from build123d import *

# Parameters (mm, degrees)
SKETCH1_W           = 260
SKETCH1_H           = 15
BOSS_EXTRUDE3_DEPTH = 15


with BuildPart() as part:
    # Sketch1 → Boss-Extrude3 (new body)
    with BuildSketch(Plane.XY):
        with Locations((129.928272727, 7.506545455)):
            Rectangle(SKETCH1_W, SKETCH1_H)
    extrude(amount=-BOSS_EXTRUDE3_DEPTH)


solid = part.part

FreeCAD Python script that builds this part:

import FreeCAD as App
import Part
import Sketcher
from FreeCAD import Vector
Q = App.Units.Quantity


def add_polygon(sketch, points):
    """Adds a closed chain of lines whose ends are joined by coincident constraints."""
    first, n = sketch.GeometryCount, len(points)
    for a, b in zip(points, points[1:] + points[:1]):
        sketch.addGeometry(Part.LineSegment(App.Vector(*a, 0), App.Vector(*b, 0)), False)
    for i in range(n):
        sketch.addConstraint(Sketcher.Constraint("Coincident", first + i, 2, first + (i + 1) % n, 1))

doc = App.newDocument("Part")
params = doc.addObject("Spreadsheet::Sheet", "Params")
for row, (alias, value) in enumerate([
    ("sketch1_width", "260 mm"),
    ("sketch1_height", "15 mm"),
    ("pad1_length", "15 mm"),
], start=1):
    params.set(f"A{row}", alias)
    params.set(f"B{row}", "=" + value)
    params.setAlias(f"B{row}", alias)

body = doc.addObject("PartDesign::Body", "Body")

sketch1 = body.newObject("Sketcher::SketchObject", "Sketch")
sketch1.AttachmentSupport = (doc.getObject("XY_Plane"), [""])
sketch1.MapMode = "FlatFace"
add_polygon(sketch1, [(0, 15), (0, 0), (260, 0), (260, 15)])
sketch1.addConstraint([
    Sketcher.Constraint("Vertical", 0),
    Sketcher.Constraint("Horizontal", 1),
    Sketcher.Constraint("Vertical", 2),
    Sketcher.Constraint("Horizontal", 3),
    Sketcher.Constraint("DistanceX", 1, 1, 1, 2, Q("260 mm")),
    Sketcher.Constraint("DistanceY", 0, 2, 0, 1, Q("15 mm")),
    Sketcher.Constraint("DistanceX", 0, 2, -1, 1, Q("0.071727 mm")),
    Sketcher.Constraint("DistanceY", -1, 1, 0, 2, Q("0.006545 mm")),
])
sketch1.setExpression("Constraints[8]", "Params.sketch1_width")
sketch1.setExpression("Constraints[9]", "Params.sketch1_height")
pad1 = body.newObject("PartDesign::Pad", "Pad")
pad1.Profile = sketch1
pad1.setExpression("Length", "Params.pad1_length")
pad1.Reversed = True

doc.recompute()
